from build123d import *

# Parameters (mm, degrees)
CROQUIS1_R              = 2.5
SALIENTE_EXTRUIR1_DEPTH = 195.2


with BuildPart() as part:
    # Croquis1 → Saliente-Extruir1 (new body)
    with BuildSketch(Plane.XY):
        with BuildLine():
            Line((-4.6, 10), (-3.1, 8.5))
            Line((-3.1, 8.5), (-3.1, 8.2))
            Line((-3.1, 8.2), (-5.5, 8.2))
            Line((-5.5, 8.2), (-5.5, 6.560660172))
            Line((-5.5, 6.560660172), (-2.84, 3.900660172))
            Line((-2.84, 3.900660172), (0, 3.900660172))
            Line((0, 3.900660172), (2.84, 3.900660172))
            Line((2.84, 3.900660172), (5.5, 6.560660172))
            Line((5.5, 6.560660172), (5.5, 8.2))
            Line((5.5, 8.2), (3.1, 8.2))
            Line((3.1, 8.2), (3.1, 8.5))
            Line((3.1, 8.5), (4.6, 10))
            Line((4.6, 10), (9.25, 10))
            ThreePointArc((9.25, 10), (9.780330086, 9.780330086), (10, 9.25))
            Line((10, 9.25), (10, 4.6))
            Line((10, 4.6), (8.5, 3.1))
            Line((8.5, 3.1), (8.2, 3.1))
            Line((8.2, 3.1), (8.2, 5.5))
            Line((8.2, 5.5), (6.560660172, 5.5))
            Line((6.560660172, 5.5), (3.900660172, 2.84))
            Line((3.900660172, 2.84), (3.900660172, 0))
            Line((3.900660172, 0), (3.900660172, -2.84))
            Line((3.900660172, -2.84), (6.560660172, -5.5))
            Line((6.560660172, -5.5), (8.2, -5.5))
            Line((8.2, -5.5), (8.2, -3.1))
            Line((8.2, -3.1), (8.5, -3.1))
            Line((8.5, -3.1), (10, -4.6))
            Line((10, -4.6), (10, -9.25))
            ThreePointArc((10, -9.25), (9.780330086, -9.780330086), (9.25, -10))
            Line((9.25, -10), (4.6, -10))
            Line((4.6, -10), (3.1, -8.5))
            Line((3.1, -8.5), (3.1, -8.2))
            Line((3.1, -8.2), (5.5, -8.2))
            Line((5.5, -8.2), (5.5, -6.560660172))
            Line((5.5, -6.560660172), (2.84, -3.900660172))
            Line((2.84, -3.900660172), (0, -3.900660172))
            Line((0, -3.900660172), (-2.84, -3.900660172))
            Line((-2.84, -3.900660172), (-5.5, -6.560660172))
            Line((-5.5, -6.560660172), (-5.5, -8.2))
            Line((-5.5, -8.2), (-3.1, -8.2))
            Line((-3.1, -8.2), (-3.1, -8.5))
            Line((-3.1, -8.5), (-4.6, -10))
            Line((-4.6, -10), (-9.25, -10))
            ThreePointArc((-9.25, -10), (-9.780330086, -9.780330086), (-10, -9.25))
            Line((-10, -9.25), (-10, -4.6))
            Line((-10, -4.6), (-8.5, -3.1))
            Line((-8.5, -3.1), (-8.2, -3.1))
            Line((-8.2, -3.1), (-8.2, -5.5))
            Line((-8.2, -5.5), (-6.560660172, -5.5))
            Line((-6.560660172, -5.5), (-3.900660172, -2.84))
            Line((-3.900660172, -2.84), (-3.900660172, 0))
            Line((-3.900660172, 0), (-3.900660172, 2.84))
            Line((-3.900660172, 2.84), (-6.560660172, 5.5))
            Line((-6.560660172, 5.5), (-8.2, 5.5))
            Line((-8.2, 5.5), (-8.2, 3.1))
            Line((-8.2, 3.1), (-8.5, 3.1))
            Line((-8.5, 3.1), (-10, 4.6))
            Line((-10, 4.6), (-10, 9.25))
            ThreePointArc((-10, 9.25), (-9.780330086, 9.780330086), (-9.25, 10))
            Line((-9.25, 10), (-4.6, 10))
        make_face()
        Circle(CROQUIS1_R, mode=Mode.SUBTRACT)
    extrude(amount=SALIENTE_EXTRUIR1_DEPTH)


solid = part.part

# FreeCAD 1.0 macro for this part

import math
import FreeCAD as App
import Part
import Sketcher
from FreeCAD import Vector
Q = App.Units.Quantity

doc = App.newDocument("Part")
body = doc.addObject("PartDesign::Body", "Body")

sketch1 = body.newObject("Sketcher::SketchObject", "Sketch")
sketch1.AttachmentSupport = (doc.getObject("XY_Plane"), [""])
sketch1.MapMode = "FlatFace"
sketch1.addGeometry([
    Part.LineSegment(Vector(-3.1, 8.5, 0), Vector(-4.6, 10, 0)),
    Part.LineSegment(Vector(-4.6, 10, 0), Vector(-9.25, 10, 0)),
    Part.ArcOfCircle(Part.Circle(Vector(-9.25, 9.25, 0), Vector(0, 0, 1), 0.75), math.radians(90), math.radians(180)),
    Part.LineSegment(Vector(-10, 9.25, 0), Vector(-10, 4.6, 0)),
    Part.LineSegment(Vector(-10, 4.6, 0), Vector(-8.5, 3.1, 0)),
    Part.LineSegment(Vector(-8.5, 3.1, 0), Vector(-8.2, 3.1, 0)),
    Part.LineSegment(Vector(-8.2, 3.1, 0), Vector(-8.2, 5.5, 0)),
    Part.LineSegment(Vector(-8.2, 5.5, 0), Vector(-6.56066, 5.5, 0)),
    Part.LineSegment(Vector(-6.56066, 5.5, 0), Vector(-3.90066, 2.84, 0)),
    Part.LineSegment(Vector(-3.90066, 2.84, 0), Vector(-3.90066, -2.84, 0)),
    Part.LineSegment(Vector(-3.90066, -2.84, 0), Vector(-6.56066, -5.5, 0)),
    Part.LineSegment(Vector(-6.56066, -5.5, 0), Vector(-8.2, -5.5, 0)),
    Part.LineSegment(Vector(-8.2, -5.5, 0), Vector(-8.2, -3.1, 0)),
    Part.LineSegment(Vector(-8.2, -3.1, 0), Vector(-8.5, -3.1, 0)),
    Part.LineSegment(Vector(-8.5, -3.1, 0), Vector(-10, -4.6, 0)),
    Part.LineSegment(Vector(-10, -4.6, 0), Vector(-10, -9.25, 0)),
    Part.ArcOfCircle(Part.Circle(Vector(-9.25, -9.25, 0), Vector(0, 0, 1), 0.75), math.radians(180), math.radians(270)),
    Part.LineSegment(Vector(-9.25, -10, 0), Vector(-4.6, -10, 0)),
    Part.LineSegment(Vector(-4.6, -10, 0), Vector(-3.1, -8.5, 0)),
    Part.LineSegment(Vector(-3.1, -8.5, 0), Vector(-3.1, -8.2, 0)),
    Part.LineSegment(Vector(-3.1, -8.2, 0), Vector(-5.5, -8.2, 0)),
    Part.LineSegment(Vector(-5.5, -8.2, 0), Vector(-5.5, -6.56066, 0)),
    Part.LineSegment(Vector(-5.5, -6.56066, 0), Vector(-2.84, -3.90066, 0)),
    Part.LineSegment(Vector(-2.84, -3.90066, 0), Vector(2.84, -3.90066, 0)),
    Part.LineSegment(Vector(2.84, -3.90066, 0), Vector(5.5, -6.56066, 0)),
    Part.LineSegment(Vector(5.5, -6.56066, 0), Vector(5.5, -8.2, 0)),
    Part.LineSegment(Vector(5.5, -8.2, 0), Vector(3.1, -8.2, 0)),
    Part.LineSegment(Vector(3.1, -8.2, 0), Vector(3.1, -8.5, 0)),
    Part.LineSegment(Vector(3.1, -8.5, 0), Vector(4.6, -10, 0)),
    Part.LineSegment(Vector(4.6, -10, 0), Vector(9.25, -10, 0)),
    Part.ArcOfCircle(Part.Circle(Vector(9.25, -9.25, 0), Vector(0, 0, 1), 0.75), math.radians(-90), math.radians(0)),
    Part.LineSegment(Vector(10, -9.25, 0), Vector(10, -4.6, 0)),
    Part.LineSegment(Vector(10, -4.6, 0), Vector(8.5, -3.1, 0)),
    Part.LineSegment(Vector(8.5, -3.1, 0), Vector(8.2, -3.1, 0)),
    Part.LineSegment(Vector(8.2, -3.1, 0), Vector(8.2, -5.5, 0)),
    Part.LineSegment(Vector(8.2, -5.5, 0), Vector(6.56066, -5.5, 0)),
    Part.LineSegment(Vector(6.56066, -5.5, 0), Vector(3.90066, -2.84, 0)),
    Part.LineSegment(Vector(3.90066, -2.84, 0), Vector(3.90066, 2.84, 0)),
    Part.LineSegment(Vector(3.90066, 2.84, 0), Vector(6.56066, 5.5, 0)),
    Part.LineSegment(Vector(6.56066, 5.5, 0), Vector(8.2, 5.5, 0)),
    Part.LineSegment(Vector(8.2, 5.5, 0), Vector(8.2, 3.1, 0)),
    Part.LineSegment(Vector(8.2, 3.1, 0), Vector(8.5, 3.1, 0)),
    Part.LineSegment(Vector(8.5, 3.1, 0), Vector(10, 4.6, 0)),
    Part.LineSegment(Vector(10, 4.6, 0), Vector(10, 9.25, 0)),
    Part.ArcOfCircle(Part.Circle(Vector(9.25, 9.25, 0), Vector(0, 0, 1), 0.75), math.radians(0), math.radians(90)),
    Part.LineSegment(Vector(9.25, 10, 0), Vector(4.6, 10, 0)),
    Part.LineSegment(Vector(4.6, 10, 0), Vector(3.1, 8.5, 0)),
    Part.LineSegment(Vector(3.1, 8.5, 0), Vector(3.1, 8.2, 0)),
    Part.LineSegment(Vector(3.1, 8.2, 0), Vector(5.5, 8.2, 0)),
    Part.LineSegment(Vector(5.5, 8.2, 0), Vector(5.5, 6.56066, 0)),
    Part.LineSegment(Vector(5.5, 6.56066, 0), Vector(2.84, 3.90066, 0)),
    Part.LineSegment(Vector(2.84, 3.90066, 0), Vector(-2.84, 3.90066, 0)),
    Part.LineSegment(Vector(-2.84, 3.90066, 0), Vector(-5.5, 6.56066, 0)),
    Part.LineSegment(Vector(-5.5, 6.56066, 0), Vector(-5.5, 8.2, 0)),
    Part.LineSegment(Vector(-5.5, 8.2, 0), Vector(-3.1, 8.2, 0)),
    Part.LineSegment(Vector(-3.1, 8.2, 0), Vector(-3.1, 8.5, 0)),
    Part.Circle(Vector(0, 0, 0), Vector(0, 0, 1), 2.5),
], False)
sketch1.addConstraint([
    Sketcher.Constraint("Coincident", 0, 2, 1, 1),
    Sketcher.Constraint("Tangent", 1, 2, 2, 1),
    Sketcher.Constraint("Tangent", 2, 2, 3, 1),
    Sketcher.Constraint("Coincident", 3, 2, 4, 1),
    Sketcher.Constraint("Coincident", 4, 2, 5, 1),
    Sketcher.Constraint("Coincident", 5, 2, 6, 1),
    Sketcher.Constraint("Coincident", 6, 2, 7, 1),
    Sketcher.Constraint("Coincident", 7, 2, 8, 1),
    Sketcher.Constraint("Coincident", 8, 2, 9, 1),
    Sketcher.Constraint("Coincident", 9, 2, 10, 1),
    Sketcher.Constraint("Coincident", 10, 2, 11, 1),
    Sketcher.Constraint("Coincident", 11, 2, 12, 1),
    Sketcher.Constraint("Coincident", 12, 2, 13, 1),
    Sketcher.Constraint("Coincident", 13, 2, 14, 1),
    Sketcher.Constraint("Coincident", 14, 2, 15, 1),
    Sketcher.Constraint("Tangent", 15, 2, 16, 1),
    Sketcher.Constraint("Tangent", 16, 2, 17, 1),
    Sketcher.Constraint("Coincident", 17, 2, 18, 1),
    Sketcher.Constraint("Coincident", 18, 2, 19, 1),
    Sketcher.Constraint("Coincident", 19, 2, 20, 1),
    Sketcher.Constraint("Coincident", 20, 2, 21, 1),
    Sketcher.Constraint("Coincident", 21, 2, 22, 1),
    Sketcher.Constraint("Coincident", 22, 2, 23, 1),
    Sketcher.Constraint("Coincident", 23, 2, 24, 1),
    Sketcher.Constraint("Coincident", 24, 2, 25, 1),
    Sketcher.Constraint("Coincident", 25, 2, 26, 1),
    Sketcher.Constraint("Coincident", 26, 2, 27, 1),
    Sketcher.Constraint("Coincident", 27, 2, 28, 1),
    Sketcher.Constraint("Coincident", 28, 2, 29, 1),
    Sketcher.Constraint("Tangent", 29, 2, 30, 1),
    Sketcher.Constraint("Tangent", 30, 2, 31, 1),
    Sketcher.Constraint("Coincident", 31, 2, 32, 1),
    Sketcher.Constraint("Coincident", 32, 2, 33, 1),
    Sketcher.Constraint("Coincident", 33, 2, 34, 1),
    Sketcher.Constraint("Coincident", 34, 2, 35, 1),
    Sketcher.Constraint("Coincident", 35, 2, 36, 1),
    Sketcher.Constraint("Coincident", 36, 2, 37, 1),
    Sketcher.Constraint("Coincident", 37, 2, 38, 1),
    Sketcher.Constraint("Coincident", 38, 2, 39, 1),
    Sketcher.Constraint("Coincident", 39, 2, 40, 1),
    Sketcher.Constraint("Coincident", 40, 2, 41, 1),
    Sketcher.Constraint("Coincident", 41, 2, 42, 1),
    Sketcher.Constraint("Coincident", 42, 2, 43, 1),
    Sketcher.Constraint("Tangent", 43, 2, 44, 1),
    Sketcher.Constraint("Tangent", 44, 2, 45, 1),
    Sketcher.Constraint("Coincident", 45, 2, 46, 1),
    Sketcher.Constraint("Coincident", 46, 2, 47, 1),
    Sketcher.Constraint("Coincident", 47, 2, 48, 1),
    Sketcher.Constraint("Coincident", 48, 2, 49, 1),
    Sketcher.Constraint("Coincident", 49, 2, 50, 1),
    Sketcher.Constraint("Coincident", 50, 2, 51, 1),
    Sketcher.Constraint("Coincident", 51, 2, 52, 1),
    Sketcher.Constraint("Coincident", 52, 2, 53, 1),
    Sketcher.Constraint("Coincident", 53, 2, 54, 1),
    Sketcher.Constraint("Coincident", 54, 2, 55, 1),
    Sketcher.Constraint("Coincident", 55, 2, 0, 1),
    Sketcher.Constraint("Horizontal", 1),
    Sketcher.Constraint("Vertical", 3),
    Sketcher.Constraint("Horizontal", 5),
    Sketcher.Constraint("Vertical", 6),
    Sketcher.Constraint("Horizontal", 7),
    Sketcher.Constraint("Vertical", 9),
    Sketcher.Constraint("Horizontal", 11),
    Sketcher.Constraint("Vertical", 12),
    Sketcher.Constraint("Horizontal", 13),
    Sketcher.Constraint("Vertical", 15),
    Sketcher.Constraint("Horizontal", 17),
    Sketcher.Constraint("Vertical", 19),
    Sketcher.Constraint("Horizontal", 20),
    Sketcher.Constraint("Vertical", 21),
    Sketcher.Constraint("Horizontal", 23),
    Sketcher.Constraint("Vertical", 25),
    Sketcher.Constraint("Horizontal", 26),
    Sketcher.Constraint("Vertical", 27),
    Sketcher.Constraint("Horizontal", 29),
    Sketcher.Constraint("Vertical", 31),
    Sketcher.Constraint("Horizontal", 33),
    Sketcher.Constraint("Vertical", 34),
    Sketcher.Constraint("Horizontal", 35),
    Sketcher.Constraint("Vertical", 37),
    Sketcher.Constraint("Horizontal", 39),
    Sketcher.Constraint("Vertical", 40),
    Sketcher.Constraint("Horizontal", 41),
    Sketcher.Constraint("Vertical", 43),
    Sketcher.Constraint("Horizontal", 45),
    Sketcher.Constraint("Vertical", 47),
    Sketcher.Constraint("Horizontal", 48),
    Sketcher.Constraint("Vertical", 49),
    Sketcher.Constraint("Horizontal", 51),
    Sketcher.Constraint("Vertical", 53),
    Sketcher.Constraint("Horizontal", 54),
    Sketcher.Constraint("Vertical", 55),
    Sketcher.Constraint("Coincident", 56, 3, -1, 1),
    Sketcher.Constraint("Equal", 2, 16),
    Sketcher.Constraint("Equal", 16, 30),
    Sketcher.Constraint("Equal", 30, 44),
    Sketcher.Constraint("Symmetric", 2, 3, 30, 3, -1, 1),
    Sketcher.Constraint("Symmetric", 16, 3, 44, 3, -1, 1),
    Sketcher.Constraint("Symmetric", 4, 2, 32, 2, -1, 1),
    Sketcher.Constraint("Symmetric", 6, 2, 34, 2, -1, 1),
    Sketcher.Constraint("Symmetric", 8, 2, 36, 2, -1, 1),
    Sketcher.Constraint("Symmetric", 10, 2, 38, 2, -1, 1),
    Sketcher.Constraint("Symmetric", 12, 2, 40, 2, -1, 1),
    Sketcher.Constraint("Symmetric", 18, 2, 46, 2, -1, 1),
    Sketcher.Constraint("Symmetric", 20, 2, 48, 2, -1, 1),
    Sketcher.Constraint("Symmetric", 22, 2, 50, 2, -1, 1),
    Sketcher.Constraint("Symmetric", 24, 2, 52, 2, -1, 1),
    Sketcher.Constraint("Symmetric", 26, 2, 54, 2, -1, 1),
    Sketcher.Constraint("Symmetric", 16, 3, 30, 3, -2),
    Sketcher.Constraint("Symmetric", 21, 2, 24, 2, -2),
    Sketcher.Constraint("Symmetric", 19, 2, 26, 2, -2),
    Sketcher.Constraint("Symmetric", 13, 2, 32, 2, -2),
    Sketcher.Constraint("Symmetric", 11, 2, 34, 2, -2),
    Sketcher.Constraint("Parallel", 0, 4),
    Sketcher.Constraint("Parallel", 4, 8),
    Sketcher.Constraint("Perpendicular", 8, 10),
    Sketcher.Constraint("Parallel", 10, 14),
    Sketcher.Constraint("Parallel", 14, 18),
    Sketcher.Constraint("Parallel", 18, 22),
    Sketcher.Constraint("Perpendicular", 22, 24),
    Sketcher.Constraint("Parallel", 24, 28),
    Sketcher.Constraint("Parallel", 28, 32),
    Sketcher.Constraint("Parallel", 32, 36),
    Sketcher.Constraint("Perpendicular", 36, 38),
    Sketcher.Constraint("Parallel", 38, 42),
    Sketcher.Constraint("Parallel", 42, 46),
    Sketcher.Constraint("Parallel", 46, 50),
    Sketcher.Constraint("Perpendicular", 50, 52),
    Sketcher.Constraint("Horizontal", 18, 2, 27, 2),
    Sketcher.Constraint("Horizontal", 14, 2, 31, 2),
    Sketcher.Constraint("Horizontal", 9, 2, 36, 2),
    Sketcher.Constraint("Horizontal", 3, 2, 42, 2),
    Sketcher.Constraint("Horizontal", 46, 2, 55, 2),
    Sketcher.Constraint("Equal", 45, 3),
    Sketcher.Constraint("Equal", 54, 6),
    Sketcher.Constraint("Equal", 51, 9),
    Sketcher.Constraint("Equal", 41, 19),
    Sketcher.Constraint("Equal", 39, 21),
    Sketcher.Constraint("Equal", 0, 4),
    Sketcher.Constraint("Equal", 10, 22),
    Sketcher.Constraint("Diameter", 56, Q("5 mm")),
    Sketcher.Constraint("Radius", 2, Q("0.75 mm")),
    Sketcher.Constraint("DistanceX", 5, 1, 5, 2, Q("0.3 mm")),
    Sketcher.Constraint("DistanceX", 20, 2, 20, 1, Q("2.4 mm")),
    Sketcher.Constraint("DistanceY", -1, 1, 0, 2, Q("10 mm")),
    Sketcher.Constraint("DistanceX", 1, 2, 1, 1, Q("4.65 mm")),
    Sketcher.Constraint("DistanceX", 23, 1, 23, 2, Q("5.68 mm")),
    Sketcher.Constraint("DistanceX", 4, 2, -1, 1, Q("8.5 mm")),
    Sketcher.Constraint("DistanceX", 7, 1, 7, 2, Q("1.63934 mm")),
])
pad1 = body.newObject("PartDesign::Pad", "Pad")
pad1.Profile = sketch1
pad1.Length = 195.2

doc.recompute()
